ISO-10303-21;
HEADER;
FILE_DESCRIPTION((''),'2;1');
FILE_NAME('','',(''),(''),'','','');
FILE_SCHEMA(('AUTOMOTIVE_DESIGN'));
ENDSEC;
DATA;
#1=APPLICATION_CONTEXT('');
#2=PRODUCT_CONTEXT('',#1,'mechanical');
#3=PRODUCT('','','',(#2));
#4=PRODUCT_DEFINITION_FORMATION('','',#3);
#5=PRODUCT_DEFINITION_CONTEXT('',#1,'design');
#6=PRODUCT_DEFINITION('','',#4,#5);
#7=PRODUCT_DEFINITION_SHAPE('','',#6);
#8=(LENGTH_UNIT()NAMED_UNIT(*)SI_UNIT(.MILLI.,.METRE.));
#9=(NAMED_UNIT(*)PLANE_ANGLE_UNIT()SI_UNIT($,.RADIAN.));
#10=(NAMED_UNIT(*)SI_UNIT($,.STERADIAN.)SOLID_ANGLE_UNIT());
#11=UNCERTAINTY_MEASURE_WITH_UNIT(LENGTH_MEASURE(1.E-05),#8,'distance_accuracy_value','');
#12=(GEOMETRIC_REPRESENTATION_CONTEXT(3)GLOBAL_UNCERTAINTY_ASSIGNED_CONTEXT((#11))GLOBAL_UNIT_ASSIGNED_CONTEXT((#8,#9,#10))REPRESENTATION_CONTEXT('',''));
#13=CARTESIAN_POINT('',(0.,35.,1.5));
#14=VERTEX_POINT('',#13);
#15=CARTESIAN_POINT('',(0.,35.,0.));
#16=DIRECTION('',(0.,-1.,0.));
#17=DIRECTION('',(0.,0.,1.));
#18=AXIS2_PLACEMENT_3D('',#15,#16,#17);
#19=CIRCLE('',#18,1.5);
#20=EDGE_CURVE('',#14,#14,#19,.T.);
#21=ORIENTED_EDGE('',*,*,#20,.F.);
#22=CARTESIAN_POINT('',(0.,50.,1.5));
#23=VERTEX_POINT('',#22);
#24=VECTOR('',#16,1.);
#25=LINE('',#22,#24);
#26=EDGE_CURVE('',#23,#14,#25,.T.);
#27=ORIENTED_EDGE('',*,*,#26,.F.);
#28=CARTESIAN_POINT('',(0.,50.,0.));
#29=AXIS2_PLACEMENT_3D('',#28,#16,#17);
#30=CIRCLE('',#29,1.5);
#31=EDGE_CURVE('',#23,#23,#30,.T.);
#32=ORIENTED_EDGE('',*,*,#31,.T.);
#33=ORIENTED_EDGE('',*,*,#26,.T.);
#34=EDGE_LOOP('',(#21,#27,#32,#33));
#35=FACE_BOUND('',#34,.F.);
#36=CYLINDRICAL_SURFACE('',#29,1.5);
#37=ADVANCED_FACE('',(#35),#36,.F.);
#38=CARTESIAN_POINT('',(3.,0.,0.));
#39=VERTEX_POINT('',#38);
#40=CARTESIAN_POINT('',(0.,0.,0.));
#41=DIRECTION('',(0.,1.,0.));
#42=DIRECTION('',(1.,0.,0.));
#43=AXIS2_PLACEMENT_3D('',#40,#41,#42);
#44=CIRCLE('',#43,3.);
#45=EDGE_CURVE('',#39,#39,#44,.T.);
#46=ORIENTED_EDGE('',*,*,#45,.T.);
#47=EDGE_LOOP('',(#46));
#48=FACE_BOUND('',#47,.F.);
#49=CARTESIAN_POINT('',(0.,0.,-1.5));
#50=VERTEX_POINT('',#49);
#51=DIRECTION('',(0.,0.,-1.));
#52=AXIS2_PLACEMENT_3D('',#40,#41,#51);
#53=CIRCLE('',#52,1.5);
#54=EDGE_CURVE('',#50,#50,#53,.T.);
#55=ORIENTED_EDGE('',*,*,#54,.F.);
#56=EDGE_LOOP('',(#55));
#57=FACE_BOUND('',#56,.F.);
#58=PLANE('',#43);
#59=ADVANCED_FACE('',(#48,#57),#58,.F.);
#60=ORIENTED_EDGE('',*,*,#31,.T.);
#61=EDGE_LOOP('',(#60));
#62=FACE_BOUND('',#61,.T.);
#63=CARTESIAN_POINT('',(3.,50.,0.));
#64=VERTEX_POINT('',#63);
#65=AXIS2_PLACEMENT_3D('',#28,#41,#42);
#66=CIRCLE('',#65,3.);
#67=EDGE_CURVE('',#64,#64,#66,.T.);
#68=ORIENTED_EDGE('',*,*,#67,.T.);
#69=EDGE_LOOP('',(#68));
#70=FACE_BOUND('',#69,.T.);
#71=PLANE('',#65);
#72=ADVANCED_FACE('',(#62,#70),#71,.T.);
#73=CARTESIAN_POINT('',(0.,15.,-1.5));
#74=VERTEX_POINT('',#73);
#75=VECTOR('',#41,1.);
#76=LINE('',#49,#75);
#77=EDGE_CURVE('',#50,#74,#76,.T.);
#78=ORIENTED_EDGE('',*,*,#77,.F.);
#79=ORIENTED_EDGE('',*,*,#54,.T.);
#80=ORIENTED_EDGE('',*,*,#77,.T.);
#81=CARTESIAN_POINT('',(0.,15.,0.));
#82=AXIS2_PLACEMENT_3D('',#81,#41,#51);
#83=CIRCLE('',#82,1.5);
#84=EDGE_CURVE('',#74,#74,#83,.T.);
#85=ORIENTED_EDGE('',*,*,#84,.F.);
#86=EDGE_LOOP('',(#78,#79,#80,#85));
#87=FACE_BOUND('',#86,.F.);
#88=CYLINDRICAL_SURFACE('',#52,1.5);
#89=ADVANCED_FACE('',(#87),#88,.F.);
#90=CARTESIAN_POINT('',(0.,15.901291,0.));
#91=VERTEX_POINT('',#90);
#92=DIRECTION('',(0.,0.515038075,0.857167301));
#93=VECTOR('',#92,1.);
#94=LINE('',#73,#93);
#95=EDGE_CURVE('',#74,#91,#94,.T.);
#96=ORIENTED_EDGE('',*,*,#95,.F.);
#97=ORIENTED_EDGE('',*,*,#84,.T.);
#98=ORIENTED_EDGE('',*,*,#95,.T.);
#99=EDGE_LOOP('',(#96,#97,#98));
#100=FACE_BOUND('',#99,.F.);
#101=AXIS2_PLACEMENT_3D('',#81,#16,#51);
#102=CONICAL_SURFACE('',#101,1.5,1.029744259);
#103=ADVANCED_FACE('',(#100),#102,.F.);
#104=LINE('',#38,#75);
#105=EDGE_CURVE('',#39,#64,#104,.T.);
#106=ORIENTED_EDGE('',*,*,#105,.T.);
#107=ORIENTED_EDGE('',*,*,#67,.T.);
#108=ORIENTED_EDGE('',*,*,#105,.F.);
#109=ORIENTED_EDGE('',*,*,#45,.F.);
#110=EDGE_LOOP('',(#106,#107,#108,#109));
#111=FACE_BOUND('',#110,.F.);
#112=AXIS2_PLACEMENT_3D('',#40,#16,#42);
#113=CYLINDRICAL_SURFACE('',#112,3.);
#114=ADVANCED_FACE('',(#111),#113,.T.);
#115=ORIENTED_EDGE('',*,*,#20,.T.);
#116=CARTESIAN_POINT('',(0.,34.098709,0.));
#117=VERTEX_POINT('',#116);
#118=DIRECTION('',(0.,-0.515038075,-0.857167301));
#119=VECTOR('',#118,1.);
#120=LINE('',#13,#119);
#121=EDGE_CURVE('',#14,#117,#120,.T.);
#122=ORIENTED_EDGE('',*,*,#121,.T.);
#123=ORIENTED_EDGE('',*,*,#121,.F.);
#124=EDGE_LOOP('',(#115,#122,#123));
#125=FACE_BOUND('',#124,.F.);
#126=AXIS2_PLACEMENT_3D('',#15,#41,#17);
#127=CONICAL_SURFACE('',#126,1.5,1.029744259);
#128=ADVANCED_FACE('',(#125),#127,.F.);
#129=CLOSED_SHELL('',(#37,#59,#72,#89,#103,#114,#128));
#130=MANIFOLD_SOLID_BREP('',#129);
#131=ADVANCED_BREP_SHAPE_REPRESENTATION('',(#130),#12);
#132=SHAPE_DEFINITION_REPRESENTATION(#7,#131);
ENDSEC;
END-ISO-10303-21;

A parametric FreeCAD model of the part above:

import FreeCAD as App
import Part
import Sketcher

doc = App.newDocument("Part")
body = doc.addObject("PartDesign::Body", "Body")

# Sketch on XZ plane
sketch1 = body.newObject("Sketcher::SketchObject", "Sketch")
sketch1.AttachmentSupport = (doc.getObject("XZ_Plane"), [""])
sketch1.MapMode = "FlatFace"
sketch1.addGeometry(Part.Circle(App.Vector(0, 0, 0), App.Vector(0, 0, 1), 3), False)
sketch1.addConstraint([
    Sketcher.Constraint("Coincident", 0, 3, -1, 1),
    Sketcher.Constraint("Diameter", 0, 6.0),
])
pad1 = body.newObject("PartDesign::Pad", "Pad")
pad1.Profile = sketch1
pad1.Length = 50
pad1.Reversed = True

# Sketch on XZ plane
sketch2 = body.newObject("Sketcher::SketchObject", "Sketch001")
sketch2.AttachmentSupport = (doc.getObject("XZ_Plane"), [""])
sketch2.MapMode = "FlatFace"
sketch2.AttachmentOffset = App.Placement(App.Vector(0, 0, -50), App.Rotation())
sketch2.addGeometry(Part.Circle(App.Vector(0, 0, 0), App.Vector(0, 0, 1), 1.5), False)
sketch2.addConstraint([
    Sketcher.Constraint("Coincident", 0, 3, -1, 1),
    Sketcher.Constraint("Diameter", 0, 3.0),
])
doc.recompute()
hole = body.newObject("PartDesign::Hole", "Hole")
hole.Profile = sketch2
hole.ThreadType = "None"
hole.Diameter = 3
hole.DepthType = "Dimension"
hole.Depth = 15
hole.DrillPoint = "Angled"
hole.DrillPointAngle = 118
hole.Reversed = True

# Sketch on XZ plane
sketch3 = body.newObject("Sketcher::SketchObject", "Sketch002")
sketch3.AttachmentSupport = (doc.getObject("XZ_Plane"), [""])
sketch3.MapMode = "FlatFace"
sketch3.addGeometry(Part.Circle(App.Vector(0, 0, 0), App.Vector(0, 0, 1), 1.5), False)
sketch3.addConstraint([
    Sketcher.Constraint("Coincident", 0, 3, -1, 1),
    Sketcher.Constraint("Diameter", 0, 3.0),
])
doc.recompute()
hole2 = body.newObject("PartDesign::Hole", "Hole001")
hole2.Profile = sketch3
hole2.ThreadType = "None"
hole2.Diameter = 3
hole2.DepthType = "Dimension"
hole2.Depth = 15
hole2.DrillPoint = "Angled"
hole2.DrillPointAngle = 118

doc.recompute()
